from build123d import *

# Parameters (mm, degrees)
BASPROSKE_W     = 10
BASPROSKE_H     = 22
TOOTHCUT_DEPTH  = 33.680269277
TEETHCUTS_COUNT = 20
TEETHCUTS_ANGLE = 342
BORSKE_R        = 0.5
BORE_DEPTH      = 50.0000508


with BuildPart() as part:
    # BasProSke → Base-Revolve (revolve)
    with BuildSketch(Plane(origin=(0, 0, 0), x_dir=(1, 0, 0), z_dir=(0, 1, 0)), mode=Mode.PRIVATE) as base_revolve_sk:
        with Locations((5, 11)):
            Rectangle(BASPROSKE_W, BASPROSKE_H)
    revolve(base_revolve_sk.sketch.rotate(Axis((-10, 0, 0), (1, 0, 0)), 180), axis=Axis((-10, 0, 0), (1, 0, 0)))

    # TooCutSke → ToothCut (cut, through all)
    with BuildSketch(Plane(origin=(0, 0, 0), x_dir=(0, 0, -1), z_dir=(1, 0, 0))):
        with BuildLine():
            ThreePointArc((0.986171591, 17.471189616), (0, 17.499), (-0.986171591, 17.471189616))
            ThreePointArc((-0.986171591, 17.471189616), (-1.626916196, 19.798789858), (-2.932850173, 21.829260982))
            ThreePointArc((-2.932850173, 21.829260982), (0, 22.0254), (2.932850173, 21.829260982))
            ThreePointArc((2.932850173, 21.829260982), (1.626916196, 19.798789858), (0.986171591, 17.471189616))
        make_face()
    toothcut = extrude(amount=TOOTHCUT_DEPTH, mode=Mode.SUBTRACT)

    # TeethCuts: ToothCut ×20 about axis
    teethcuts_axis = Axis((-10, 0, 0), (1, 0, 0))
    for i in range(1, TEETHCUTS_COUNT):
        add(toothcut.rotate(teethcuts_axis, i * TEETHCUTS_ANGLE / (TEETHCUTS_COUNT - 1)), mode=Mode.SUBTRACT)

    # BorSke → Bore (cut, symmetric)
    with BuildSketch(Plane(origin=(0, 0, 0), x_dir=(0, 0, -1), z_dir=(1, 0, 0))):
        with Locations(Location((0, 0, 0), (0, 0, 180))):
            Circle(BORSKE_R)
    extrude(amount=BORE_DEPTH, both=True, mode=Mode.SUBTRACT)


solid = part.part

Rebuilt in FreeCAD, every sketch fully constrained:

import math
import FreeCAD as App
import Part
import Sketcher
from FreeCAD import Vector

doc = App.newDocument("Part")
body = doc.addObject("PartDesign::Body", "Body")

# Sketch on XZ plane
sketch1 = body.newObject("Sketcher::SketchObject", "Sketch")
sketch1.AttachmentSupport = (doc.getObject("XZ_Plane"), [""])
sketch1.MapMode = "FlatFace"
sketch1.addGeometry([
    Part.LineSegment(Vector(0, -22, 0), Vector(0, 0, 0)),
    Part.LineSegment(Vector(0, 0, 0), Vector(10, 0, 0)),
    Part.LineSegment(Vector(10, 0, 0), Vector(10, -22, 0)),
    Part.LineSegment(Vector(10, -22, 0), Vector(0, -22, 0)),
], False)
sketch1.addConstraint([
    Sketcher.Constraint("Coincident", 0, 2, 1, 1),
    Sketcher.Constraint("Coincident", 1, 2, 2, 1),
    Sketcher.Constraint("Coincident", 2, 2, 3, 1),
    Sketcher.Constraint("Coincident", 3, 2, 0, 1),
    Sketcher.Constraint("Vertical", 0),
    Sketcher.Constraint("Horizontal", 1),
    Sketcher.Constraint("Vertical", 2),
    Sketcher.Constraint("Horizontal", 3),
    Sketcher.Constraint("Coincident", 0, 2, -1, 1),
    Sketcher.Constraint("DistanceX", 1, 1, 1, 2, 10.0),
    Sketcher.Constraint("DistanceY", 0, 1, 0, 2, 22.0),
])
revolution = body.newObject("PartDesign::Revolution", "Revolution")
revolution.Profile = sketch1
revolution.ReferenceAxis = (sketch1, ["H_Axis"])
revolution.Angle = 360

# Sketch on YZ plane
sketch2 = body.newObject("Sketcher::SketchObject", "Sketch001")
sketch2.AttachmentSupport = (doc.getObject("YZ_Plane"), [""])
sketch2.MapMode = "FlatFace"
sketch2.addGeometry([
    Part.ArcOfCircle(Part.Circle(Vector(0, 0, 0), Vector(0, 0, 1), 17.499), math.radians(-3.230666), math.radians(3.230666)),
    Part.ArcOfCircle(Part.Circle(Vector(16.536031, -8.931326, 0), Vector(0, 0, 1), 8), math.radians(48.573876), math.radians(83.287069)),
    Part.ArcOfCircle(Part.Circle(Vector(0, 0, 0), Vector(0, 0, 1), 22.0254), math.radians(-7.652098), math.radians(7.652098)),
    Part.ArcOfCircle(Part.Circle(Vector(16.536031, 8.931326, 0), Vector(0, 0, 1), 8), math.radians(-83.287069), math.radians(-48.573876)),
], False)
sketch2.addConstraint([
    Sketcher.Constraint("Coincident", 0, 1, 1, 2),
    Sketcher.Constraint("Coincident", 1, 1, 2, 1),
    Sketcher.Constraint("Coincident", 2, 2, 3, 2),
    Sketcher.Constraint("Coincident", 3, 1, 0, 2),
    Sketcher.Constraint("Coincident", 0, 3, -1, 1),
    Sketcher.Constraint("Coincident", 2, 3, -1, 1),
    Sketcher.Constraint("Equal", 1, 3),
    Sketcher.Constraint("Symmetric", 1, 3, 3, 3, -1),
    Sketcher.Constraint("Radius", 1, 8.0),
    Sketcher.Constraint("Radius", 0, 17.499),
    Sketcher.Constraint("Radius", 2, 22.0254),
    Sketcher.Constraint("DistanceY", 1, 1, 2, 2, 5.8657),
    Sketcher.Constraint("DistanceX", -1, 1, 1, 3, 16.536031),
])
pocket1 = body.newObject("PartDesign::Pocket", "Pocket")
pocket1.Profile = sketch2
pocket1.Type = "ThroughAll"
pocket1.Reversed = True
doc.recompute()

polarpattern = body.newObject("PartDesign::PolarPattern", "PolarPattern")
polarpattern.Originals = [pocket1]
polarpattern.Axis = (doc.getObject("X_Axis"), [""])
polarpattern.Angle = 360
polarpattern.Occurrences = 20
body.Tip = polarpattern

# Sketch on YZ plane
sketch3 = body.newObject("Sketcher::SketchObject", "Sketch002")
sketch3.AttachmentSupport = (doc.getObject("YZ_Plane"), [""])
sketch3.MapMode = "FlatFace"
sketch3.addGeometry(Part.Circle(Vector(0, 0, 0), Vector(0, 0, 1), 0.5), False)
sketch3.addConstraint([
    Sketcher.Constraint("Coincident", 0, 3, -1, 1),
    Sketcher.Constraint("Diameter", 0, 1.0),
])
pocket2 = body.newObject("PartDesign::Pocket", "Pocket001")
pocket2.Profile = sketch3
pocket2.Length = 100.000102
pocket2.Midplane = True

doc.recompute()
